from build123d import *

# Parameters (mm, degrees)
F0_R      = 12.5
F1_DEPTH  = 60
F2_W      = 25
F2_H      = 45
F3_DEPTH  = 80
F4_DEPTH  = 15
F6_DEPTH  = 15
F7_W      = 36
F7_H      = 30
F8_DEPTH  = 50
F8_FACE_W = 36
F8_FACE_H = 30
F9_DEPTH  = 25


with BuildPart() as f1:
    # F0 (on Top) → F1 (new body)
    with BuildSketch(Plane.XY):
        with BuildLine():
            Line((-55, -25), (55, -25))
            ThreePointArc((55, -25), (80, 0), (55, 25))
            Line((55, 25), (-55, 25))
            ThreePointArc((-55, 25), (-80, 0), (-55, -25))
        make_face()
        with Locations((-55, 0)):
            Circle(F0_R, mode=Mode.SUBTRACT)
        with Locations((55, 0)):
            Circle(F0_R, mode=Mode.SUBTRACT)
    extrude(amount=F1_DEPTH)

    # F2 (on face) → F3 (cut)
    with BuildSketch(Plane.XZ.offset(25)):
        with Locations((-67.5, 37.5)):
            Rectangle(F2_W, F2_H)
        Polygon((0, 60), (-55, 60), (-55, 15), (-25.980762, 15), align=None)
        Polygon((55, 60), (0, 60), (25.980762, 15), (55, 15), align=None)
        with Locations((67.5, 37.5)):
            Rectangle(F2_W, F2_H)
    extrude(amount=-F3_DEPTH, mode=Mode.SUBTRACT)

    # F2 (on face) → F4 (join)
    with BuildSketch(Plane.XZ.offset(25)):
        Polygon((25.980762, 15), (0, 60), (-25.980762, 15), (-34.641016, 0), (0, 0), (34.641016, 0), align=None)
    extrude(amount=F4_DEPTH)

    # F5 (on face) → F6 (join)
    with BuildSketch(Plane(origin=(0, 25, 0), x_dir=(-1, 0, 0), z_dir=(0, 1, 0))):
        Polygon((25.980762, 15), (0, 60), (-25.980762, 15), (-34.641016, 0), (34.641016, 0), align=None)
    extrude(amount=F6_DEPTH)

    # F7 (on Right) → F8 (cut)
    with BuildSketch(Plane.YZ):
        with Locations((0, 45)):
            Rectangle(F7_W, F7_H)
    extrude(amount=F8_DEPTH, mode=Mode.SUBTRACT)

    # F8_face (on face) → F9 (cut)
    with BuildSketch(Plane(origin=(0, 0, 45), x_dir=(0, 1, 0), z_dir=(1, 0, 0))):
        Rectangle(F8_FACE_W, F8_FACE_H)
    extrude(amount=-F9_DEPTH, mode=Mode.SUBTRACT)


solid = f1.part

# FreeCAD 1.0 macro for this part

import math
import FreeCAD as App
import Part
import Sketcher
from FreeCAD import Vector
Q = App.Units.Quantity


def add_polygon(sketch, points):
    """Adds a closed chain of lines whose ends are joined by coincident constraints."""
    first, n = sketch.GeometryCount, len(points)
    for a, b in zip(points, points[1:] + points[:1]):
        sketch.addGeometry(Part.LineSegment(App.Vector(*a, 0), App.Vector(*b, 0)), False)
    for i in range(n):
        sketch.addConstraint(Sketcher.Constraint("Coincident", first + i, 2, first + (i + 1) % n, 1))

doc = App.newDocument("Part")
body = doc.addObject("PartDesign::Body", "Body")

sketch1 = body.newObject("Sketcher::SketchObject", "Sketch")
sketch1.AttachmentSupport = (doc.getObject("XY_Plane"), [""])
sketch1.MapMode = "FlatFace"
sketch1.addGeometry(Part.LineSegment(Vector(-55, -25, 0), Vector(55, -25, 0)), False)
sketch1.addGeometry(Part.ArcOfCircle(Part.Circle(Vector(55, 0, 0), Vector(0, 0, 1), 25), math.radians(-90), math.radians(90)), False)
sketch1.addGeometry(Part.LineSegment(Vector(55, 25, 0), Vector(-55, 25, 0)), False)
sketch1.addGeometry(Part.ArcOfCircle(Part.Circle(Vector(-55, 0, 0), Vector(0, 0, 1), 25), math.radians(90), math.radians(270)), False)
sketch1.addGeometry(Part.Circle(Vector(-55, 0, 0), Vector(0, 0, 1), 12), False)
sketch1.addGeometry(Part.Circle(Vector(55, 0, 0), Vector(0, 0, 1), 12), False)
sketch1.addConstraint(Sketcher.Constraint("Tangent", 0, 2, 1, 1))
sketch1.addConstraint(Sketcher.Constraint("Tangent", 1, 2, 2, 1))
sketch1.addConstraint(Sketcher.Constraint("Tangent", 2, 2, 3, 1))
sketch1.addConstraint(Sketcher.Constraint("Tangent", 3, 2, 0, 1))
sketch1.addConstraint(Sketcher.Constraint("Horizontal", 0))
sketch1.addConstraint(Sketcher.Constraint("Horizontal", 2))
sketch1.addConstraint(Sketcher.Constraint("Coincident", 4, 3, 3, 3))
sketch1.addConstraint(Sketcher.Constraint("Coincident", 5, 3, 1, 3))
sketch1.addConstraint(Sketcher.Constraint("Equal", 4, 5))
sketch1.addConstraint(Sketcher.Constraint("Symmetric", 1, 3, 3, 3, -1, 1))
sketch1.addConstraint(Sketcher.Constraint("Diameter", 4, 25.0))
sketch1.addConstraint(Sketcher.Constraint("Radius", 1, 25.0))
sketch1.addConstraint(Sketcher.Constraint("DistanceX", 0, 1, 0, 2, 110.0))
pad1 = body.newObject("PartDesign::Pad", "Pad")
pad1.Profile = sketch1
pad1.Length = 60

sketch2 = body.newObject("Sketcher::SketchObject", "Sketch001")
sketch2.AttachmentSupport = (doc.getObject("XZ_Plane"), [""])
sketch2.MapMode = "FlatFace"
sketch2.AttachmentOffset = App.Placement(Vector(0, 0, 25), App.Rotation())
add_polygon(sketch2, [(-80, 60), (-80, 15), (-26, 15), (0, 60)])
add_polygon(sketch2, [(0, 60), (26, 15), (80, 15), (80, 60)])
sketch2.addConstraint(Sketcher.Constraint("Vertical", 0))
sketch2.addConstraint(Sketcher.Constraint("Horizontal", 1))
sketch2.addConstraint(Sketcher.Constraint("Horizontal", 3))
sketch2.addConstraint(Sketcher.Constraint("Horizontal", 5))
sketch2.addConstraint(Sketcher.Constraint("Vertical", 6))
sketch2.addConstraint(Sketcher.Constraint("Horizontal", 7))
sketch2.addConstraint(Sketcher.Constraint("Coincident", 7, 2, 2, 2))
sketch2.addConstraint(Sketcher.Constraint("Symmetric", 1, 2, 4, 2, -2))
sketch2.addConstraint(Sketcher.Constraint("PointOnObject", 2, 2, -2))
sketch2.addConstraint(Sketcher.Constraint("Equal", 1, 5))
sketch2.addConstraint(Sketcher.Constraint("DistanceX", 3, 2, 3, 1, 80.0))
sketch2.addConstraint(Sketcher.Constraint("DistanceY", 0, 2, 0, 1, 45.0))
sketch2.addConstraint(Sketcher.Constraint("Angle", 2, Q("60 deg")))
sketch2.addConstraint(Sketcher.Constraint("DistanceY", -1, 1, 0, 2, 15.0))
pocket1 = body.newObject("PartDesign::Pocket", "Pocket")
pocket1.Profile = sketch2
pocket1.Length = 80

sketch3 = body.newObject("Sketcher::SketchObject", "Sketch002")
sketch3.AttachmentSupport = (doc.getObject("XZ_Plane"), [""])
sketch3.MapMode = "FlatFace"
sketch3.AttachmentOffset = App.Placement(Vector(0, 0, 25), App.Rotation())
add_polygon(sketch3, [(0, 60), (-34.641016, 0), (34.641016, 0)])
sketch3.addConstraint(Sketcher.Constraint("Horizontal", 1))
sketch3.addConstraint(Sketcher.Constraint("Symmetric", 0, 2, 1, 2, -1, 1))
sketch3.addConstraint(Sketcher.Constraint("PointOnObject", 2, 2, -2))
sketch3.addConstraint(Sketcher.Constraint("Angle", 0, Q("-120 deg")))
sketch3.addConstraint(Sketcher.Constraint("DistanceY", -1, 1, 2, 2, 60.0))
pad2 = body.newObject("PartDesign::Pad", "Pad001")
pad2.Profile = sketch3
pad2.Length = 15

sketch4 = body.newObject("Sketcher::SketchObject", "Sketch003")
sketch4.AttachmentSupport = (doc.getObject("XZ_Plane"), [""])
sketch4.MapMode = "FlatFace"
sketch4.AttachmentOffset = App.Placement(Vector(0, 0, -25), App.Rotation())
add_polygon(sketch4, [(0, 60), (34.641016, 0), (-34.641016, 0)])
sketch4.addConstraint(Sketcher.Constraint("Horizontal", 1))
sketch4.addConstraint(Sketcher.Constraint("Symmetric", 0, 2, 1, 2, -1, 1))
sketch4.addConstraint(Sketcher.Constraint("PointOnObject", 2, 2, -2))
sketch4.addConstraint(Sketcher.Constraint("Angle", 0, Q("-60 deg")))
sketch4.addConstraint(Sketcher.Constraint("DistanceY", -1, 1, 2, 2, 60.0))
pad3 = body.newObject("PartDesign::Pad", "Pad002")
pad3.Profile = sketch4
pad3.Length = 15
pad3.Reversed = True

sketch5 = body.newObject("Sketcher::SketchObject", "Sketch004")
sketch5.AttachmentSupport = (doc.getObject("YZ_Plane"), [""])
sketch5.MapMode = "FlatFace"
add_polygon(sketch5, [(-18, 60), (-18, 30), (18, 30), (18, 60)])
sketch5.addConstraint(Sketcher.Constraint("Vertical", 0))
sketch5.addConstraint(Sketcher.Constraint("Horizontal", 1))
sketch5.addConstraint(Sketcher.Constraint("Vertical", 2))
sketch5.addConstraint(Sketcher.Constraint("Horizontal", 3))
sketch5.addConstraint(Sketcher.Constraint("DistanceX", 1, 1, 1, 2, 36.0))
sketch5.addConstraint(Sketcher.Constraint("DistanceY", 0, 2, 0, 1, 30.0))
sketch5.addConstraint(Sketcher.Constraint("DistanceX", 0, 2, -1, 1, 18.0))
sketch5.addConstraint(Sketcher.Constraint("DistanceY", -1, 1, 0, 2, 30.0))
pocket2 = body.newObject("PartDesign::Pocket", "Pocket001")
pocket2.Profile = sketch5
pocket2.Length = 50
pocket2.Reversed = True

sketch6 = body.newObject("Sketcher::SketchObject", "Sketch005")
sketch6.AttachmentSupport = (doc.getObject("YZ_Plane"), [""])
sketch6.MapMode = "FlatFace"
add_polygon(sketch6, [(-18, 60), (-18, 30), (18, 30), (18, 60)])
sketch6.addConstraint(Sketcher.Constraint("Vertical", 0))
sketch6.addConstraint(Sketcher.Constraint("Horizontal", 1))
sketch6.addConstraint(Sketcher.Constraint("Vertical", 2))
sketch6.addConstraint(Sketcher.Constraint("Horizontal", 3))
sketch6.addConstraint(Sketcher.Constraint("DistanceX", 1, 1, 1, 2, 36.0))
sketch6.addConstraint(Sketcher.Constraint("DistanceY", 0, 2, 0, 1, 30.0))
sketch6.addConstraint(Sketcher.Constraint("DistanceX", 0, 2, -1, 1, 18.0))
sketch6.addConstraint(Sketcher.Constraint("DistanceY", -1, 1, 0, 2, 30.0))
pocket3 = body.newObject("PartDesign::Pocket", "Pocket002")
pocket3.Profile = sketch6
pocket3.Length = 25

doc.recompute()
